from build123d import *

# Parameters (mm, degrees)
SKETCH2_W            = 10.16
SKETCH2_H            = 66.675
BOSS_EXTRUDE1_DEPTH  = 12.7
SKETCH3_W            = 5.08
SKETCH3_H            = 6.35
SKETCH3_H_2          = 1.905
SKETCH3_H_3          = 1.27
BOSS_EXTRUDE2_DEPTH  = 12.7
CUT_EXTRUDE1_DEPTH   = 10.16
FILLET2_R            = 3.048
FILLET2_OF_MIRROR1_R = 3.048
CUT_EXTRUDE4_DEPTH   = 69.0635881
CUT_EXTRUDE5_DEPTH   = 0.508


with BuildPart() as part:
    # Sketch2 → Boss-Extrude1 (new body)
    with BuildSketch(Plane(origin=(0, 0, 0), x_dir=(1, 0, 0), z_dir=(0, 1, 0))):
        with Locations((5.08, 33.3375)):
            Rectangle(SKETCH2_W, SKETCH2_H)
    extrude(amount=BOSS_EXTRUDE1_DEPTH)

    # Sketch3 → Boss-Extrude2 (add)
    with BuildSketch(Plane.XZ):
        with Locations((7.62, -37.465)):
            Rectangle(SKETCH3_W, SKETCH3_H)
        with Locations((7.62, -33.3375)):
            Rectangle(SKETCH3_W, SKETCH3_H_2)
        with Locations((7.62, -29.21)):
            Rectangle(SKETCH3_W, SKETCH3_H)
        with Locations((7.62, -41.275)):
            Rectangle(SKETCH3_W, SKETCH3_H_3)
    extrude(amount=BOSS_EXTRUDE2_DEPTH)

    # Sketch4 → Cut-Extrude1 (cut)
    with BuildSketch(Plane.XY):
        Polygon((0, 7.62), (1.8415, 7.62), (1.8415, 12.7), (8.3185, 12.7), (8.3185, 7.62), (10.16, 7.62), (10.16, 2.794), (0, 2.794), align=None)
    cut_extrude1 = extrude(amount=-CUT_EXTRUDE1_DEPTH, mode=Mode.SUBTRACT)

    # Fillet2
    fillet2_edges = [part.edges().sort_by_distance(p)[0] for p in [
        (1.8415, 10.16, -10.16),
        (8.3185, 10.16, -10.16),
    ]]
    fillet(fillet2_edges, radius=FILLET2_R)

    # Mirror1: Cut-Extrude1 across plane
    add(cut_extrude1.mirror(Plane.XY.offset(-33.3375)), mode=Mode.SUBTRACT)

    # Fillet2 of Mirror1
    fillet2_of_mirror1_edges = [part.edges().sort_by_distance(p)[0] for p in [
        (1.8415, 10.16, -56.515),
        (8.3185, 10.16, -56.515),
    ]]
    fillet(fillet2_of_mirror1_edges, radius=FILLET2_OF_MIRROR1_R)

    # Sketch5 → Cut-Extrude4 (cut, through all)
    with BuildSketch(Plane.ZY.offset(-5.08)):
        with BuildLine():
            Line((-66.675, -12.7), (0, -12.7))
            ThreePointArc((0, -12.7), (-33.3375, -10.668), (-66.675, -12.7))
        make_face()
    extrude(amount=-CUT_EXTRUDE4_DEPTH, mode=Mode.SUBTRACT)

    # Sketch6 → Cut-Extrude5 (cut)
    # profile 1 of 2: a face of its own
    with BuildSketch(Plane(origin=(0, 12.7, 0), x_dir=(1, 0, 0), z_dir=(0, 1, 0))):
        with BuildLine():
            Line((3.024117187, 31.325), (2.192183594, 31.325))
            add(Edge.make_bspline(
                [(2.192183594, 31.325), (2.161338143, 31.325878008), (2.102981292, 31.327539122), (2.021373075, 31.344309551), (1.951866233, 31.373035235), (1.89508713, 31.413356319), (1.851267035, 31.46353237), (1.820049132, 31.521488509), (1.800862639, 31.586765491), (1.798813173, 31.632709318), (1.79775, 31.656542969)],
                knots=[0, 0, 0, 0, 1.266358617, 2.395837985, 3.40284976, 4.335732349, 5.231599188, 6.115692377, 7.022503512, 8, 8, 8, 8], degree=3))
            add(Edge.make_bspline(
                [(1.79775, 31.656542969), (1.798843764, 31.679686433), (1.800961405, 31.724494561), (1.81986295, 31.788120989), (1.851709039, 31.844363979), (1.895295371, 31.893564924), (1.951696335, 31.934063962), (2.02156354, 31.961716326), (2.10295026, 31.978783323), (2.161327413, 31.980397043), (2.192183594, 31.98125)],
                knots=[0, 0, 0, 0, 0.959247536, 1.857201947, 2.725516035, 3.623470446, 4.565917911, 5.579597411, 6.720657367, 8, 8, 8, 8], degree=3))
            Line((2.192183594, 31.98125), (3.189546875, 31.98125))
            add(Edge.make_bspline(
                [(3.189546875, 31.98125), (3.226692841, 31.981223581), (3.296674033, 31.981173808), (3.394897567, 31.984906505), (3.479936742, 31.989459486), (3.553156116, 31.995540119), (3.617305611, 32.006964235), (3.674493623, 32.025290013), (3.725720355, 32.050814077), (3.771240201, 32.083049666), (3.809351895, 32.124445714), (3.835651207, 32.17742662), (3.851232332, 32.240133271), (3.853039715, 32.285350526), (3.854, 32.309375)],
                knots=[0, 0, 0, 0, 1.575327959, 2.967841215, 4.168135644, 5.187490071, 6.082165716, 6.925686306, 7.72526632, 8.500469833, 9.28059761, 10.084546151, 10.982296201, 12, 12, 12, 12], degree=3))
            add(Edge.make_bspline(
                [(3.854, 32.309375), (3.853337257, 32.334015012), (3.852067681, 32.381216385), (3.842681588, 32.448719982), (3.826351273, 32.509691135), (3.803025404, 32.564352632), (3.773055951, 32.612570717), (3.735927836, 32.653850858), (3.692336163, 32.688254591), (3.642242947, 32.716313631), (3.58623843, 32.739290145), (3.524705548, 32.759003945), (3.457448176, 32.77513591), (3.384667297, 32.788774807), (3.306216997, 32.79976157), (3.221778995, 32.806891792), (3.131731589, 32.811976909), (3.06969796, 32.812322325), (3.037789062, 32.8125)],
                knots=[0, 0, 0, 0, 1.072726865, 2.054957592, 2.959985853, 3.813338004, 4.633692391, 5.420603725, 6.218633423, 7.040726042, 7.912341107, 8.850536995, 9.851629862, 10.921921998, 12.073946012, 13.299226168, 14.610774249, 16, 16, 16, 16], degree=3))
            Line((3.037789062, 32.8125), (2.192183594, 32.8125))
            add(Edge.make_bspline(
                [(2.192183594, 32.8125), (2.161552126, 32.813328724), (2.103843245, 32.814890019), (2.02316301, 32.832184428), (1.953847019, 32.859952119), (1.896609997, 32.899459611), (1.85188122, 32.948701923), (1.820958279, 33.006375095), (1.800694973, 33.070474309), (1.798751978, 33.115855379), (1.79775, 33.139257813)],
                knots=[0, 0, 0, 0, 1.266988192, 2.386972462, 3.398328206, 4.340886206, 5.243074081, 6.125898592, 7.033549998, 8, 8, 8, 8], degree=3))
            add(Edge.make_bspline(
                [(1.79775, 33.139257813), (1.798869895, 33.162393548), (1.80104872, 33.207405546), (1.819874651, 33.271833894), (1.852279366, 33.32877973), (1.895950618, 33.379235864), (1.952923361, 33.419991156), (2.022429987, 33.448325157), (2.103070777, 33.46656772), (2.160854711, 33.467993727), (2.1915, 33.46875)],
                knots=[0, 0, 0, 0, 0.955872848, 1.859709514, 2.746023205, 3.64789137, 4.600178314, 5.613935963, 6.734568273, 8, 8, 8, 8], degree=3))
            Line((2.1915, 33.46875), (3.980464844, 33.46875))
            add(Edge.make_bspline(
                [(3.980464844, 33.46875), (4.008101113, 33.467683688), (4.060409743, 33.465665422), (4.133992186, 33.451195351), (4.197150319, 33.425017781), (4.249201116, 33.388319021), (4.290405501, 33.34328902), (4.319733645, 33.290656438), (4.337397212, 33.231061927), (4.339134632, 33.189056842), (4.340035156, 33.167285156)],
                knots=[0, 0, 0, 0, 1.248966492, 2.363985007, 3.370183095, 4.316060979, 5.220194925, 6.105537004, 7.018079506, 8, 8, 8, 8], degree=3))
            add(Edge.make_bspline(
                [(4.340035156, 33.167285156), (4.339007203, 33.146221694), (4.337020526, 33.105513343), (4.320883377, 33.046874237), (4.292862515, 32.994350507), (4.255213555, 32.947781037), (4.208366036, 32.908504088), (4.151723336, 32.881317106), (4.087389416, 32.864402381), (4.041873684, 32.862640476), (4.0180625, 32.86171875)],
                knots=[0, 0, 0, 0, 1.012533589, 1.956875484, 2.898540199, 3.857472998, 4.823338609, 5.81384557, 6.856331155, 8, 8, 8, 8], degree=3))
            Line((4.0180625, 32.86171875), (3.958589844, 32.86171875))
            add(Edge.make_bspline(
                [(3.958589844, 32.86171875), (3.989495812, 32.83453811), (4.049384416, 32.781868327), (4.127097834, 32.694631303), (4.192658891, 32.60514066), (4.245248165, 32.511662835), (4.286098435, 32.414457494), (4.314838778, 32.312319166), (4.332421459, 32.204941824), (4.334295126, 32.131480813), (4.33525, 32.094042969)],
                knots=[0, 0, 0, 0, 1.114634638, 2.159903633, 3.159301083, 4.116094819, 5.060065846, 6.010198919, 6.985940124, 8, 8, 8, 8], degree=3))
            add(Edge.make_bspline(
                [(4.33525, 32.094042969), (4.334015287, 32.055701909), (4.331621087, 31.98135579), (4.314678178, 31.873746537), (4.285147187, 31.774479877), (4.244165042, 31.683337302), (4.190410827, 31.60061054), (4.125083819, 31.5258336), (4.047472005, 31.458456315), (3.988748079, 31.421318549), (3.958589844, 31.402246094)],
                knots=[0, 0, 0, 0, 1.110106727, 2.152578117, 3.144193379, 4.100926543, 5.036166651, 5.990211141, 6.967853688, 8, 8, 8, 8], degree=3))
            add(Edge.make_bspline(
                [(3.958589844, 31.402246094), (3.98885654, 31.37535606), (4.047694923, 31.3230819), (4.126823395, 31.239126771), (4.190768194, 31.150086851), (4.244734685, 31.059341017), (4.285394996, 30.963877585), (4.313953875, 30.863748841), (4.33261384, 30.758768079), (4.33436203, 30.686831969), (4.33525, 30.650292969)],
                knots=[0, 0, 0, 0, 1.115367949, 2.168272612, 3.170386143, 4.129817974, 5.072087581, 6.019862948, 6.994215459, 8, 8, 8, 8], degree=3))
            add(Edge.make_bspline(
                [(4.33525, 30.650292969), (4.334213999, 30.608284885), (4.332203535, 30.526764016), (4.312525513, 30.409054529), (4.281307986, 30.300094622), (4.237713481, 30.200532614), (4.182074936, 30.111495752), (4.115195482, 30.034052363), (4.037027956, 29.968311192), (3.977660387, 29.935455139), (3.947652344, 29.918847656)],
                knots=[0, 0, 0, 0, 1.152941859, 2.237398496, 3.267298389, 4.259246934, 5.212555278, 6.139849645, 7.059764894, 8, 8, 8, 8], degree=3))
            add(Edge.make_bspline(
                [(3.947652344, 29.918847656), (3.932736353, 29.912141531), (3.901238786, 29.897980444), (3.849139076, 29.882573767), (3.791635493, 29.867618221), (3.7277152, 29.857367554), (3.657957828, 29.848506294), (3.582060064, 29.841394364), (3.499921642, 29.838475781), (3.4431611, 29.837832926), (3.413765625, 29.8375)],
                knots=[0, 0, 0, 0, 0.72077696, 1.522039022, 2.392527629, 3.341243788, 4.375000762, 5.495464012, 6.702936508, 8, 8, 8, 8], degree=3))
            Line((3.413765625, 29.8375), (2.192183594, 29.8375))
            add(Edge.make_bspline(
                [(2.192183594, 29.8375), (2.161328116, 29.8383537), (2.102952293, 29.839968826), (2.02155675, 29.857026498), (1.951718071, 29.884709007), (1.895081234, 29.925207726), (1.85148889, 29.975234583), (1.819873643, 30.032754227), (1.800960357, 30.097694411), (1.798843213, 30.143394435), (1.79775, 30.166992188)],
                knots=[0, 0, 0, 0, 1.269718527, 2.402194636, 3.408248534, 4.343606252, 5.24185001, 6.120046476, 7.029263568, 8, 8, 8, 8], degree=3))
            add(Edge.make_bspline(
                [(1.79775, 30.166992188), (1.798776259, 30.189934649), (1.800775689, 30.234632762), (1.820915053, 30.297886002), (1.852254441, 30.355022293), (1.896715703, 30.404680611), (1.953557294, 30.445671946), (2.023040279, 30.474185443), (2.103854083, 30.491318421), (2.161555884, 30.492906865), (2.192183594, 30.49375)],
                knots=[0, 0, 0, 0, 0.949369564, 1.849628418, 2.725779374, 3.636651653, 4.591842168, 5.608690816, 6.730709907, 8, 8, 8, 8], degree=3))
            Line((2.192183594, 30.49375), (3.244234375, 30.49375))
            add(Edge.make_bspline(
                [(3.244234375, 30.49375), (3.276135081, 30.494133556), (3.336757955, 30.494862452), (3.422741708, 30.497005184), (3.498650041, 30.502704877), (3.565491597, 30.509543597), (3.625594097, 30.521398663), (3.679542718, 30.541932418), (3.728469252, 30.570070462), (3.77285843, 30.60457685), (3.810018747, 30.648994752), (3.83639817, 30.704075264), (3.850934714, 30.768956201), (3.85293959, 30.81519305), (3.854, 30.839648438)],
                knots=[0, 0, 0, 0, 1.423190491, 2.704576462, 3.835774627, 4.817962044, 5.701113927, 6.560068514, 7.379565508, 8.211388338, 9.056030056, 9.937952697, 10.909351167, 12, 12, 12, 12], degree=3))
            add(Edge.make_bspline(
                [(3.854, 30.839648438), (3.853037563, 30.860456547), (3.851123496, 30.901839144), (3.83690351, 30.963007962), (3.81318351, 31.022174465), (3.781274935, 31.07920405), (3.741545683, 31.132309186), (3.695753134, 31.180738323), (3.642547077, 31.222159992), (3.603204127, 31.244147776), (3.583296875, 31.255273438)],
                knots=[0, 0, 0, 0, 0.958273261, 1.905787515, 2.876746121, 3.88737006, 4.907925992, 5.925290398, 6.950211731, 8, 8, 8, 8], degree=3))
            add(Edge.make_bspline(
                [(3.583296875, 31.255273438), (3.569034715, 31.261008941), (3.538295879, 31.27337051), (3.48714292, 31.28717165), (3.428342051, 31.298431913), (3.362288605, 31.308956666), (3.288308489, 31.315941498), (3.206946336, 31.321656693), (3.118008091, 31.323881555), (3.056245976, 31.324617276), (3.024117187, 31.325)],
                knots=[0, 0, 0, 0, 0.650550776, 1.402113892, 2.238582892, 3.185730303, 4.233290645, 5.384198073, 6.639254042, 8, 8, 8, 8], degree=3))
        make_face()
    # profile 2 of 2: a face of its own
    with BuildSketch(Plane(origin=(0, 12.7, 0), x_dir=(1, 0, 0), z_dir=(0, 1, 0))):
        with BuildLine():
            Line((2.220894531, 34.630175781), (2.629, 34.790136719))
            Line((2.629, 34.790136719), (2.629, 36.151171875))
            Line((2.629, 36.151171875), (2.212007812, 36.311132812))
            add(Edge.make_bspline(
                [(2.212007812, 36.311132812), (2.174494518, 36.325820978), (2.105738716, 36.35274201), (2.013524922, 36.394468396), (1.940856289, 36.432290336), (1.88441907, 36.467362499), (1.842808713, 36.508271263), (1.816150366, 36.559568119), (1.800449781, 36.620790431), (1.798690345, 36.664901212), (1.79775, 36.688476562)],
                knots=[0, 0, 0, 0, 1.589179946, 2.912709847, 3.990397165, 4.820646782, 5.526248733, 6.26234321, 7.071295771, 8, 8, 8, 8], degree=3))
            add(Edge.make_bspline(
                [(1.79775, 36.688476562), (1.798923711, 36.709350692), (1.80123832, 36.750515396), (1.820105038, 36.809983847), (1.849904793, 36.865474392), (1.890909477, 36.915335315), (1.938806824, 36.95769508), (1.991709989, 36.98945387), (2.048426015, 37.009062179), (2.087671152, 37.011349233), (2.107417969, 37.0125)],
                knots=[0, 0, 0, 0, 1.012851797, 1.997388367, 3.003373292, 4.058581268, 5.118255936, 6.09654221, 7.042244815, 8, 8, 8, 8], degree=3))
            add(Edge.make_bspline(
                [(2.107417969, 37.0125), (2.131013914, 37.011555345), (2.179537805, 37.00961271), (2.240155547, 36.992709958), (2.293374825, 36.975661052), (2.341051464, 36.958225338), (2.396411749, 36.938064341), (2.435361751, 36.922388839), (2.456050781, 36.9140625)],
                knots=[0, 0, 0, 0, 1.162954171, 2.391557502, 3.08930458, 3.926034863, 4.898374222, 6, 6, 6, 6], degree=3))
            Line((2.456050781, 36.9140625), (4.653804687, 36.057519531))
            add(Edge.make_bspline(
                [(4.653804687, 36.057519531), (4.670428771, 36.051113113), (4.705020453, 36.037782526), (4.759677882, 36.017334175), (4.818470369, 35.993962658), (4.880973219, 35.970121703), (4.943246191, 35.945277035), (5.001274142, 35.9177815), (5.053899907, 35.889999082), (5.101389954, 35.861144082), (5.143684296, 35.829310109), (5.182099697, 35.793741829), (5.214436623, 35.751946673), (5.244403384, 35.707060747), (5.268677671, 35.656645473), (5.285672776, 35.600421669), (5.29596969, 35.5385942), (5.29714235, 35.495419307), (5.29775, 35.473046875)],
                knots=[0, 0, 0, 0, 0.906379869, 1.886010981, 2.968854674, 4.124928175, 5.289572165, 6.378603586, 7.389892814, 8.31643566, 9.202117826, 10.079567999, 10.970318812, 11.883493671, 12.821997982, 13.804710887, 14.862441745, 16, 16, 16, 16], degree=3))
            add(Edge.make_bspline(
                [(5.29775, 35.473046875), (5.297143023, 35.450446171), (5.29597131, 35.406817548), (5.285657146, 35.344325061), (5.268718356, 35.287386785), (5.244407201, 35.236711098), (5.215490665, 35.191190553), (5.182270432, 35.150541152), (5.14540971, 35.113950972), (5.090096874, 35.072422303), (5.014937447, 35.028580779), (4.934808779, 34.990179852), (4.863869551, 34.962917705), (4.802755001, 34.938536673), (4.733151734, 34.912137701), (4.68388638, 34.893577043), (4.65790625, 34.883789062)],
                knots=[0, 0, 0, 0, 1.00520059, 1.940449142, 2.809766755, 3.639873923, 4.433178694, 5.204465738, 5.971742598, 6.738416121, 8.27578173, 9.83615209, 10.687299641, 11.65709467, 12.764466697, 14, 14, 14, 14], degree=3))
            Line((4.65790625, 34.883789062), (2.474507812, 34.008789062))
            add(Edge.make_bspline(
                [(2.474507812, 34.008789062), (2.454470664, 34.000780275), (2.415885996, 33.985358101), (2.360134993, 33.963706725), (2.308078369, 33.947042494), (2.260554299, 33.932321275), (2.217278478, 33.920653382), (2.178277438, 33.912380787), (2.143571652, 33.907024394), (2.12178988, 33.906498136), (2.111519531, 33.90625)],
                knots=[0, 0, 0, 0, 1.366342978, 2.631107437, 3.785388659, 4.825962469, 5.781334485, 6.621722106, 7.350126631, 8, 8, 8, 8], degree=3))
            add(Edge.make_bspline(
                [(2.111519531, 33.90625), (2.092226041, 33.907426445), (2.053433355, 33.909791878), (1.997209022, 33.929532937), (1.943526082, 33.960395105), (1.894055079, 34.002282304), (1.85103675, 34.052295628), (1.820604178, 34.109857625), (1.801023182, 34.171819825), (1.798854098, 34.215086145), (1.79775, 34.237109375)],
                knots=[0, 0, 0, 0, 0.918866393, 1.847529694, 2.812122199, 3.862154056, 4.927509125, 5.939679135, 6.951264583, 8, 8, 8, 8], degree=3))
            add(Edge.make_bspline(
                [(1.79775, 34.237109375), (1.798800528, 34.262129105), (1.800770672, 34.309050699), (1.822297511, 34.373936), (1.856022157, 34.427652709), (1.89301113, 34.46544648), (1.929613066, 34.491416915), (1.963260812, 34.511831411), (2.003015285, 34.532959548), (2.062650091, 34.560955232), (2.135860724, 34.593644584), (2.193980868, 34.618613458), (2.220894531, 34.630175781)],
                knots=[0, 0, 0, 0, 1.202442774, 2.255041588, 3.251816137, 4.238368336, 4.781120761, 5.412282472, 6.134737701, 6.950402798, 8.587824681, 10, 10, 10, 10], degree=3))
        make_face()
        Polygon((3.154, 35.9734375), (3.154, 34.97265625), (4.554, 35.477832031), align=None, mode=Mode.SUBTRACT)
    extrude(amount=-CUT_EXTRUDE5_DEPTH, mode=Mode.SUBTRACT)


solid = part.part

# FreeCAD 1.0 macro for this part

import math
import FreeCAD as App
import Part
import Sketcher
Q = App.Units.Quantity


def edges_at(feature, points):
    """Names of the edges that pass closest to the given points."""
    edges = feature.Shape.Edges
    near = lambda p: min(range(len(edges)), key=lambda i: edges[i].distToShape(Part.Vertex(*p))[0])
    return sorted({f"Edge{near(p) + 1}" for p in points})


def add_polygon(sketch, points):
    """Adds a closed chain of lines whose ends are joined by coincident constraints."""
    first, n = sketch.GeometryCount, len(points)
    for a, b in zip(points, points[1:] + points[:1]):
        sketch.addGeometry(Part.LineSegment(App.Vector(*a, 0), App.Vector(*b, 0)), False)
    for i in range(n):
        sketch.addConstraint(Sketcher.Constraint("Coincident", first + i, 2, first + (i + 1) % n, 1))

doc = App.newDocument("Part")
body = doc.addObject("PartDesign::Body", "Body")

# Sketch on XZ plane
sketch1 = body.newObject("Sketcher::SketchObject", "Sketch")
sketch1.AttachmentSupport = (doc.getObject("XZ_Plane"), [""])
sketch1.MapMode = "FlatFace"
add_polygon(sketch1, [(0, -66.675), (0, 0), (10.16, 0), (10.16, -66.675)])  # lines 0-3
sketch1.addConstraint(Sketcher.Constraint("Vertical", 0))
sketch1.addConstraint(Sketcher.Constraint("Horizontal", 1))
sketch1.addConstraint(Sketcher.Constraint("Vertical", 2))
sketch1.addConstraint(Sketcher.Constraint("Horizontal", 3))
sketch1.addConstraint(Sketcher.Constraint("Coincident", 0, 2, -1, 1))
sketch1.addConstraint(Sketcher.Constraint("DistanceX", 1, 1, 1, 2, Q("0.4 in")))
sketch1.addConstraint(Sketcher.Constraint("DistanceY", 0, 1, 0, 2, Q("2.625 in")))
pad1 = body.newObject("PartDesign::Pad", "Pad")
pad1.Profile = sketch1
pad1.Length = Q("0.5 in")
pad1.Reversed = True

# Sketch on XZ plane
sketch2 = body.newObject("Sketcher::SketchObject", "Sketch001")
sketch2.AttachmentSupport = (doc.getObject("XZ_Plane"), [""])
sketch2.MapMode = "FlatFace"
add_polygon(sketch2, [(10.16, -26.035), (5.08, -26.035), (5.08, -41.91), (10.16, -41.91)])  # lines 0-3
sketch2.addConstraint(Sketcher.Constraint("Horizontal", 0))
sketch2.addConstraint(Sketcher.Constraint("Vertical", 1))
sketch2.addConstraint(Sketcher.Constraint("Horizontal", 2))
sketch2.addConstraint(Sketcher.Constraint("Vertical", 3))
sketch2.addConstraint(Sketcher.Constraint("DistanceX", 0, 2, 0, 1, Q("0.2 in")))
sketch2.addConstraint(Sketcher.Constraint("DistanceX", -1, 1, 0, 2, Q("0.2 in")))
sketch2.addConstraint(Sketcher.Constraint("DistanceY", 1, 2, 1, 1, Q("0.625 in")))
sketch2.addConstraint(Sketcher.Constraint("DistanceY", 1, 2, -1, 1, Q("1.65 in")))
pad2 = body.newObject("PartDesign::Pad", "Pad001")
pad2.Profile = sketch2
pad2.Length = Q("0.5 in")

# Sketch on XY plane
sketch3 = body.newObject("Sketcher::SketchObject", "Sketch002")
sketch3.AttachmentSupport = (doc.getObject("XY_Plane"), [""])
sketch3.MapMode = "FlatFace"
add_polygon(sketch3, [(1.8415, 7.62), (0, 7.62), (0, 2.794), (10.16, 2.794), (10.16, 7.62), (8.3185, 7.62), (8.3185, 12.7), (1.8415, 12.7)])  # lines 0-7
sketch3.addConstraint(Sketcher.Constraint("Horizontal", 0))
sketch3.addConstraint(Sketcher.Constraint("Vertical", 1))
sketch3.addConstraint(Sketcher.Constraint("Horizontal", 2))
sketch3.addConstraint(Sketcher.Constraint("Vertical", 3))
sketch3.addConstraint(Sketcher.Constraint("Horizontal", 4))
sketch3.addConstraint(Sketcher.Constraint("Vertical", 5))
sketch3.addConstraint(Sketcher.Constraint("Horizontal", 6))
sketch3.addConstraint(Sketcher.Constraint("Vertical", 7))
sketch3.addConstraint(Sketcher.Constraint("PointOnObject", 0, 2, -2))
sketch3.addConstraint(Sketcher.Constraint("Horizontal", 0, 2, 3, 2))
sketch3.addConstraint(Sketcher.Constraint("Equal", 0, 4))
sketch3.addConstraint(Sketcher.Constraint("DistanceX", 2, 1, 2, 2, Q("0.4 in")))
sketch3.addConstraint(Sketcher.Constraint("DistanceY", 5, 1, 5, 2, Q("0.2 in")))
sketch3.addConstraint(Sketcher.Constraint("DistanceY", 1, 2, 1, 1, Q("0.19 in")))
sketch3.addConstraint(Sketcher.Constraint("DistanceY", -1, 1, 0, 2, Q("0.3 in")))
sketch3.addConstraint(Sketcher.Constraint("DistanceX", 6, 2, 6, 1, Q("0.255 in")))
pocket1 = body.newObject("PartDesign::Pocket", "Pocket")
pocket1.Profile = sketch3
pocket1.Length = Q("0.4 in")
doc.recompute()

fillet = body.newObject("PartDesign::Fillet", "Fillet")
fillet.Base = (pocket1, edges_at(pocket1, [(1.841, 10.16, -10.16), (8.319, 10.16, -10.16)]))
fillet.Radius = Q("0.12 in")
doc.recompute()

datumplane = body.newObject("PartDesign::Plane", "DatumPlane")
datumplane.AttachmentSupport = (doc.getObject("XY_Plane"), [""])
datumplane.MapMode = "FlatFace"
datumplane.AttachmentOffset = App.Placement(App.Vector(0, 0, -1.3125 * 25.4), App.Rotation())
mirrored = body.newObject("PartDesign::Mirrored", "Mirrored")
mirrored.Originals = [pocket1]
mirrored.MirrorPlane = (datumplane, [""])
body.Tip = mirrored
doc.recompute()

fillet2 = body.newObject("PartDesign::Fillet", "Fillet001")
fillet2.Base = (mirrored, edges_at(mirrored, [(1.841, 10.16, -56.515), (8.319, 10.16, -56.515)]))
fillet2.Radius = Q("0.12 in")

# Sketch on YZ plane
sketch4 = body.newObject("Sketcher::SketchObject", "Sketch003")
sketch4.AttachmentSupport = (doc.getObject("YZ_Plane"), [""])
sketch4.MapMode = "FlatFace"
sketch4.AttachmentOffset = App.Placement(App.Vector(0, 0, 0.2 * 25.4), App.Rotation())
sketch4.addGeometry(Part.LineSegment(App.Vector(-12.7, -66.675, 0), App.Vector(-12.7, 0, 0)), False)
sketch4.addGeometry(Part.ArcOfCircle(Part.Circle(App.Vector(-285.15568, -33.3375, 0), App.Vector(0, 0, 1), 274.48768), math.radians(-6.975998), math.radians(6.975998)), False)
sketch4.addConstraint(Sketcher.Constraint("Coincident", 0, 1, 1, 1))
sketch4.addConstraint(Sketcher.Constraint("Coincident", 1, 2, 0, 2))
sketch4.addConstraint(Sketcher.Constraint("Vertical", 0))
sketch4.addConstraint(Sketcher.Constraint("PointOnObject", 1, 2, -1))
sketch4.addConstraint(Sketcher.Constraint("DistanceX", 0, 1, -1, 1, Q("0.5 in")))
sketch4.addConstraint(Sketcher.Constraint("DistanceY", 0, 1, 0, 2, Q("2.625 in")))
sketch4.addConstraint(Sketcher.Constraint("Radius", 1, 274.48768))
pocket2 = body.newObject("PartDesign::Pocket", "Pocket001")
pocket2.Profile = sketch4
pocket2.Type = "ThroughAll"
pocket2.Reversed = True

# Sketch on XZ plane
sketch5 = body.newObject("Sketcher::SketchObject", "Sketch004")
sketch5.AttachmentSupport = (doc.getObject("XZ_Plane"), [""])
sketch5.MapMode = "FlatFace"
sketch5.AttachmentOffset = App.Placement(App.Vector(0, 0, -0.5 * 25.4), App.Rotation())
sketch5.addGeometry(Part.LineSegment(App.Vector(2.192184, -31.325, 0), App.Vector(3.024117, -31.325, 0)), False)  # 0
sketch5.addGeometry(Part.BSplineCurve([App.Vector(3.583297, -31.255273, 0), App.Vector(3.569035, -31.261009, 0), App.Vector(3.538296, -31.273371, 0), App.Vector(3.487143, -31.287172, 0), App.Vector(3.428342, -31.298432, 0), App.Vector(3.362289, -31.308957, 0), App.Vector(3.288308, -31.315941, 0), App.Vector(3.206946, -31.321657, 0), App.Vector(3.118008, -31.323882, 0), App.Vector(3.056246, -31.324617, 0), App.Vector(3.024117, -31.325, 0)], [4, 1, 1, 1, 1, 1, 1, 1, 4], [0, 0.650550776, 1.402113892, 2.238582892, 3.185730303, 4.233290645, 5.384198073, 6.639254042, 8], False, 3, [1, 1, 1, 1, 1, 1, 1, 1, 1, 1, 1], False), False)  # 1
sketch5.addGeometry(Part.BSplineCurve([App.Vector(3.854, -30.839648, 0), App.Vector(3.853038, -30.860457, 0), App.Vector(3.851123, -30.901839, 0), App.Vector(3.836904, -30.963008, 0), App.Vector(3.813184, -31.022174, 0), App.Vector(3.781275, -31.079204, 0), App.Vector(3.741546, -31.132309, 0), App.Vector(3.695753, -31.180738, 0), App.Vector(3.642547, -31.22216, 0), App.Vector(3.603204, -31.244148, 0), App.Vector(3.583297, -31.255273, 0)], [4, 1, 1, 1, 1, 1, 1, 1, 4], [0, 0.958273261, 1.905787515, 2.876746121, 3.88737006, 4.907925992, 5.925290398, 6.950211731, 8], False, 3, [1, 1, 1, 1, 1, 1, 1, 1, 1, 1, 1], False), False)  # 2
sketch5.addGeometry(Part.BSplineCurve([App.Vector(3.244234, -30.49375, 0), App.Vector(3.276135, -30.494134, 0), App.Vector(3.336758, -30.494862, 0), App.Vector(3.422742, -30.497005, 0), App.Vector(3.49865, -30.502705, 0), App.Vector(3.565492, -30.509544, 0), App.Vector(3.625594, -30.521399, 0), App.Vector(3.679543, -30.541932, 0), App.Vector(3.728469, -30.57007, 0), App.Vector(3.772858, -30.604577, 0), App.Vector(3.810019, -30.648995, 0), App.Vector(3.836398, -30.704075, 0), App.Vector(3.850935, -30.768956, 0), App.Vector(3.85294, -30.815193, 0), App.Vector(3.854, -30.839648, 0)], [4, 1, 1, 1, 1, 1, 1, 1, 1, 1, 1, 1, 4], [0, 1.423190491, 2.704576462, 3.835774627, 4.817962044, 5.701113927, 6.560068514, 7.379565508, 8.211388338, 9.056030056, 9.937952697, 10.909351167, 12], False, 3, [1, 1, 1, 1, 1, 1, 1, 1, 1, 1, 1, 1, 1, 1, 1], False), False)  # 3
sketch5.addGeometry(Part.LineSegment(App.Vector(3.244234, -30.49375, 0), App.Vector(2.192184, -30.49375, 0)), False)  # 4
sketch5.addGeometry(Part.BSplineCurve([App.Vector(1.79775, -30.166992, 0), App.Vector(1.798776, -30.189935, 0), App.Vector(1.800776, -30.234633, 0), App.Vector(1.820915, -30.297886, 0), App.Vector(1.852254, -30.355022, 0), App.Vector(1.896716, -30.404681, 0), App.Vector(1.953557, -30.445672, 0), App.Vector(2.02304, -30.474185, 0), App.Vector(2.103854, -30.491318, 0), App.Vector(2.161556, -30.492907, 0), App.Vector(2.192184, -30.49375, 0)], [4, 1, 1, 1, 1, 1, 1, 1, 4], [0, 0.949369564, 1.849628418, 2.725779374, 3.636651653, 4.591842168, 5.608690816, 6.730709907, 8], False, 3, [1, 1, 1, 1, 1, 1, 1, 1, 1, 1, 1], False), False)  # 5
sketch5.addGeometry(Part.BSplineCurve([App.Vector(2.192184, -29.8375, 0), App.Vector(2.161328, -29.838354, 0), App.Vector(2.102952, -29.839969, 0), App.Vector(2.021557, -29.857026, 0), App.Vector(1.951718, -29.884709, 0), App.Vector(1.895081, -29.925208, 0), App.Vector(1.851489, -29.975235, 0), App.Vector(1.819874, -30.032754, 0), App.Vector(1.80096, -30.097694, 0), App.Vector(1.798843, -30.143394, 0), App.Vector(1.79775, -30.166992, 0)], [4, 1, 1, 1, 1, 1, 1, 1, 4], [0, 1.269718527, 2.402194636, 3.408248534, 4.343606252, 5.24185001, 6.120046476, 7.029263568, 8], False, 3, [1, 1, 1, 1, 1, 1, 1, 1, 1, 1, 1], False), False)  # 6
sketch5.addGeometry(Part.LineSegment(App.Vector(2.192184, -29.8375, 0), App.Vector(3.413766, -29.8375, 0)), False)  # 7
sketch5.addGeometry(Part.BSplineCurve([App.Vector(3.947652, -29.918848, 0), App.Vector(3.932736, -29.912142, 0), App.Vector(3.901239, -29.89798, 0), App.Vector(3.849139, -29.882574, 0), App.Vector(3.791635, -29.867618, 0), App.Vector(3.727715, -29.857368, 0), App.Vector(3.657958, -29.848506, 0), App.Vector(3.58206, -29.841394, 0), App.Vector(3.499922, -29.838476, 0), App.Vector(3.443161, -29.837833, 0), App.Vector(3.413766, -29.8375, 0)], [4, 1, 1, 1, 1, 1, 1, 1, 4], [0, 0.72077696, 1.522039022, 2.392527629, 3.341243788, 4.375000762, 5.495464012, 6.702936508, 8], False, 3, [1, 1, 1, 1, 1, 1, 1, 1, 1, 1, 1], False), False)  # 8
sketch5.addGeometry(Part.BSplineCurve([App.Vector(4.33525, -30.650293, 0), App.Vector(4.334214, -30.608285, 0), App.Vector(4.332204, -30.526764, 0), App.Vector(4.312526, -30.409055, 0), App.Vector(4.281308, -30.300095, 0), App.Vector(4.237713, -30.200533, 0), App.Vector(4.182075, -30.111496, 0), App.Vector(4.115195, -30.034052, 0), App.Vector(4.037028, -29.968311, 0), App.Vector(3.97766, -29.935455, 0), App.Vector(3.947652, -29.918848, 0)], [4, 1, 1, 1, 1, 1, 1, 1, 4], [0, 1.152941859, 2.237398496, 3.267298389, 4.259246934, 5.212555278, 6.139849645, 7.059764894, 8], False, 3, [1, 1, 1, 1, 1, 1, 1, 1, 1, 1, 1], False), False)  # 9
sketch5.addGeometry(Part.BSplineCurve([App.Vector(3.95859, -31.402246, 0), App.Vector(3.988857, -31.375356, 0), App.Vector(4.047695, -31.323082, 0), App.Vector(4.126823, -31.239127, 0), App.Vector(4.190768, -31.150087, 0), App.Vector(4.244735, -31.059341, 0), App.Vector(4.285395, -30.963878, 0), App.Vector(4.313954, -30.863749, 0), App.Vector(4.332614, -30.758768, 0), App.Vector(4.334362, -30.686832, 0), App.Vector(4.33525, -30.650293, 0)], [4, 1, 1, 1, 1, 1, 1, 1, 4], [0, 1.115367949, 2.168272612, 3.170386143, 4.129817974, 5.072087581, 6.019862948, 6.994215459, 8], False, 3, [1, 1, 1, 1, 1, 1, 1, 1, 1, 1, 1], False), False)  # 10
sketch5.addGeometry(Part.BSplineCurve([App.Vector(4.33525, -32.094043, 0), App.Vector(4.334015, -32.055702, 0), App.Vector(4.331621, -31.981356, 0), App.Vector(4.314678, -31.873747, 0), App.Vector(4.285147, -31.77448, 0), App.Vector(4.244165, -31.683337, 0), App.Vector(4.190411, -31.600611, 0), App.Vector(4.125084, -31.525834, 0), App.Vector(4.047472, -31.458456, 0), App.Vector(3.988748, -31.421319, 0), App.Vector(3.95859, -31.402246, 0)], [4, 1, 1, 1, 1, 1, 1, 1, 4], [0, 1.110106727, 2.152578117, 3.144193379, 4.100926543, 5.036166651, 5.990211141, 6.967853688, 8], False, 3, [1, 1, 1, 1, 1, 1, 1, 1, 1, 1, 1], False), False)  # 11
sketch5.addGeometry(Part.BSplineCurve([App.Vector(3.95859, -32.861719, 0), App.Vector(3.989496, -32.834538, 0), App.Vector(4.049384, -32.781868, 0), App.Vector(4.127098, -32.694631, 0), App.Vector(4.192659, -32.605141, 0), App.Vector(4.245248, -32.511663, 0), App.Vector(4.286098, -32.414457, 0), App.Vector(4.314839, -32.312319, 0), App.Vector(4.332421, -32.204942, 0), App.Vector(4.334295, -32.131481, 0), App.Vector(4.33525, -32.094043, 0)], [4, 1, 1, 1, 1, 1, 1, 1, 4], [0, 1.114634638, 2.159903633, 3.159301083, 4.116094819, 5.060065846, 6.010198919, 6.985940124, 8], False, 3, [1, 1, 1, 1, 1, 1, 1, 1, 1, 1, 1], False), False)  # 12
sketch5.addGeometry(Part.LineSegment(App.Vector(3.95859, -32.861719, 0), App.Vector(4.018063, -32.861719, 0)), False)  # 13
sketch5.addGeometry(Part.BSplineCurve([App.Vector(4.340035, -33.167285, 0), App.Vector(4.339007, -33.146222, 0), App.Vector(4.337021, -33.105513, 0), App.Vector(4.320883, -33.046874, 0), App.Vector(4.292863, -32.994351, 0), App.Vector(4.255214, -32.947781, 0), App.Vector(4.208366, -32.908504, 0), App.Vector(4.151723, -32.881317, 0), App.Vector(4.087389, -32.864402, 0), App.Vector(4.041874, -32.86264, 0), App.Vector(4.018063, -32.861719, 0)], [4, 1, 1, 1, 1, 1, 1, 1, 4], [0, 1.012533589, 1.956875484, 2.898540199, 3.857472998, 4.823338609, 5.81384557, 6.856331155, 8], False, 3, [1, 1, 1, 1, 1, 1, 1, 1, 1, 1, 1], False), False)  # 14
sketch5.addGeometry(Part.BSplineCurve([App.Vector(3.980465, -33.46875, 0), App.Vector(4.008101, -33.467684, 0), App.Vector(4.06041, -33.465665, 0), App.Vector(4.133992, -33.451195, 0), App.Vector(4.19715, -33.425018, 0), App.Vector(4.249201, -33.388319, 0), App.Vector(4.290406, -33.343289, 0), App.Vector(4.319734, -33.290656, 0), App.Vector(4.337397, -33.231062, 0), App.Vector(4.339135, -33.189057, 0), App.Vector(4.340035, -33.167285, 0)], [4, 1, 1, 1, 1, 1, 1, 1, 4], [0, 1.248966492, 2.363985007, 3.370183095, 4.316060979, 5.220194925, 6.105537004, 7.018079506, 8], False, 3, [1, 1, 1, 1, 1, 1, 1, 1, 1, 1, 1], False), False)  # 15
sketch5.addGeometry(Part.LineSegment(App.Vector(3.980465, -33.46875, 0), App.Vector(2.1915, -33.46875, 0)), False)  # 16
sketch5.addGeometry(Part.BSplineCurve([App.Vector(1.79775, -33.139258, 0), App.Vector(1.79887, -33.162394, 0), App.Vector(1.801049, -33.207406, 0), App.Vector(1.819875, -33.271834, 0), App.Vector(1.852279, -33.32878, 0), App.Vector(1.895951, -33.379236, 0), App.Vector(1.952923, -33.419991, 0), App.Vector(2.02243, -33.448325, 0), App.Vector(2.103071, -33.466568, 0), App.Vector(2.160855, -33.467994, 0), App.Vector(2.1915, -33.46875, 0)], [4, 1, 1, 1, 1, 1, 1, 1, 4], [0, 0.955872848, 1.859709514, 2.746023205, 3.64789137, 4.600178314, 5.613935963, 6.734568273, 8], False, 3, [1, 1, 1, 1, 1, 1, 1, 1, 1, 1, 1], False), False)  # 17
sketch5.addGeometry(Part.BSplineCurve([App.Vector(2.192184, -32.8125, 0), App.Vector(2.161552, -32.813329, 0), App.Vector(2.103843, -32.81489, 0), App.Vector(2.023163, -32.832184, 0), App.Vector(1.953847, -32.859952, 0), App.Vector(1.89661, -32.89946, 0), App.Vector(1.851881, -32.948702, 0), App.Vector(1.820958, -33.006375, 0), App.Vector(1.800695, -33.070474, 0), App.Vector(1.798752, -33.115855, 0), App.Vector(1.79775, -33.139258, 0)], [4, 1, 1, 1, 1, 1, 1, 1, 4], [0, 1.266988192, 2.386972462, 3.398328206, 4.340886206, 5.243074081, 6.125898592, 7.033549998, 8], False, 3, [1, 1, 1, 1, 1, 1, 1, 1, 1, 1, 1], False), False)  # 18
sketch5.addGeometry(Part.LineSegment(App.Vector(2.192184, -32.8125, 0), App.Vector(3.037789, -32.8125, 0)), False)  # 19
sketch5.addGeometry(Part.BSplineCurve([App.Vector(3.854, -32.309375, 0), App.Vector(3.853337, -32.334015, 0), App.Vector(3.852068, -32.381216, 0), App.Vector(3.842682, -32.44872, 0), App.Vector(3.826351, -32.509691, 0), App.Vector(3.803025, -32.564353, 0), App.Vector(3.773056, -32.612571, 0), App.Vector(3.735928, -32.653851, 0), App.Vector(3.692336, -32.688255, 0), App.Vector(3.642243, -32.716314, 0), App.Vector(3.586238, -32.73929, 0), App.Vector(3.524706, -32.759004, 0), App.Vector(3.457448, -32.775136, 0), App.Vector(3.384667, -32.788775, 0), App.Vector(3.306217, -32.799762, 0), App.Vector(3.221779, -32.806892, 0), App.Vector(3.131732, -32.811977, 0), App.Vector(3.069698, -32.812322, 0), App.Vector(3.037789, -32.8125, 0)], [4, 1, 1, 1, 1, 1, 1, 1, 1, 1, 1, 1, 1, 1, 1, 1, 4], [0, 1.072726865, 2.054957592, 2.959985853, 3.813338004, 4.633692391, 5.420603725, 6.218633423, 7.040726042, 7.912341107, 8.850536995, 9.851629862, 10.921921998, 12.073946012, 13.299226168, 14.610774249, 16], False, 3, [1, 1, 1, 1, 1, 1, 1, 1, 1, 1, 1, 1, 1, 1, 1, 1, 1, 1, 1], False), False)  # 20
sketch5.addGeometry(Part.BSplineCurve([App.Vector(3.189547, -31.98125, 0), App.Vector(3.226693, -31.981224, 0), App.Vector(3.296674, -31.981174, 0), App.Vector(3.394898, -31.984907, 0), App.Vector(3.479937, -31.989459, 0), App.Vector(3.553156, -31.99554, 0), App.Vector(3.617306, -32.006964, 0), App.Vector(3.674494, -32.02529, 0), App.Vector(3.72572, -32.050814, 0), App.Vector(3.77124, -32.08305, 0), App.Vector(3.809352, -32.124446, 0), App.Vector(3.835651, -32.177427, 0), App.Vector(3.851232, -32.240133, 0), App.Vector(3.85304, -32.285351, 0), App.Vector(3.854, -32.309375, 0)], [4, 1, 1, 1, 1, 1, 1, 1, 1, 1, 1, 1, 4], [0, 1.575327959, 2.967841215, 4.168135644, 5.187490071, 6.082165716, 6.925686306, 7.72526632, 8.500469833, 9.28059761, 10.084546151, 10.982296201, 12], False, 3, [1, 1, 1, 1, 1, 1, 1, 1, 1, 1, 1, 1, 1, 1, 1], False), False)  # 21
sketch5.addGeometry(Part.LineSegment(App.Vector(3.189547, -31.98125, 0), App.Vector(2.192184, -31.98125, 0)), False)  # 22
sketch5.addGeometry(Part.BSplineCurve([App.Vector(1.79775, -31.656543, 0), App.Vector(1.798844, -31.679686, 0), App.Vector(1.800961, -31.724495, 0), App.Vector(1.819863, -31.788121, 0), App.Vector(1.851709, -31.844364, 0), App.Vector(1.895295, -31.893565, 0), App.Vector(1.951696, -31.934064, 0), App.Vector(2.021564, -31.961716, 0), App.Vector(2.10295, -31.978783, 0), App.Vector(2.161327, -31.980397, 0), App.Vector(2.192184, -31.98125, 0)], [4, 1, 1, 1, 1, 1, 1, 1, 4], [0, 0.959247536, 1.857201947, 2.725516035, 3.623470446, 4.565917911, 5.579597411, 6.720657367, 8], False, 3, [1, 1, 1, 1, 1, 1, 1, 1, 1, 1, 1], False), False)  # 23
sketch5.addGeometry(Part.BSplineCurve([App.Vector(2.192184, -31.325, 0), App.Vector(2.161338, -31.325878, 0), App.Vector(2.102981, -31.327539, 0), App.Vector(2.021373, -31.34431, 0), App.Vector(1.951866, -31.373035, 0), App.Vector(1.895087, -31.413356, 0), App.Vector(1.851267, -31.463532, 0), App.Vector(1.820049, -31.521489, 0), App.Vector(1.800863, -31.586765, 0), App.Vector(1.798813, -31.632709, 0), App.Vector(1.79775, -31.656543, 0)], [4, 1, 1, 1, 1, 1, 1, 1, 4], [0, 1.266358617, 2.395837985, 3.40284976, 4.335732349, 5.231599188, 6.115692377, 7.022503512, 8], False, 3, [1, 1, 1, 1, 1, 1, 1, 1, 1, 1, 1], False), False)  # 24
sketch5.addGeometry(Part.LineSegment(App.Vector(2.629, -34.790137, 0), App.Vector(2.220895, -34.630176, 0)), False)  # 25
sketch5.addGeometry(Part.BSplineCurve([App.Vector(1.79775, -34.237109, 0), App.Vector(1.798801, -34.262129, 0), App.Vector(1.800771, -34.309051, 0), App.Vector(1.822298, -34.373936, 0), App.Vector(1.856022, -34.427653, 0), App.Vector(1.893011, -34.465446, 0), App.Vector(1.929613, -34.491417, 0), App.Vector(1.963261, -34.511831, 0), App.Vector(2.003015, -34.53296, 0), App.Vector(2.06265, -34.560955, 0), App.Vector(2.135861, -34.593645, 0), App.Vector(2.193981, -34.618613, 0), App.Vector(2.220895, -34.630176, 0)], [4, 1, 1, 1, 1, 1, 1, 1, 1, 1, 4], [0, 1.202442774, 2.255041588, 3.251816137, 4.238368336, 4.781120761, 5.412282472, 6.134737701, 6.950402798, 8.587824681, 10], False, 3, [1, 1, 1, 1, 1, 1, 1, 1, 1, 1, 1, 1, 1], False), False)  # 26
sketch5.addGeometry(Part.BSplineCurve([App.Vector(2.11152, -33.90625, 0), App.Vector(2.092226, -33.907426, 0), App.Vector(2.053433, -33.909792, 0), App.Vector(1.997209, -33.929533, 0), App.Vector(1.943526, -33.960395, 0), App.Vector(1.894055, -34.002282, 0), App.Vector(1.851037, -34.052296, 0), App.Vector(1.820604, -34.109858, 0), App.Vector(1.801023, -34.17182, 0), App.Vector(1.798854, -34.215086, 0), App.Vector(1.79775, -34.237109, 0)], [4, 1, 1, 1, 1, 1, 1, 1, 4], [0, 0.918866393, 1.847529694, 2.812122199, 3.862154056, 4.927509125, 5.939679135, 6.951264583, 8], False, 3, [1, 1, 1, 1, 1, 1, 1, 1, 1, 1, 1], False), False)  # 27
sketch5.addGeometry(Part.BSplineCurve([App.Vector(2.474508, -34.008789, 0), App.Vector(2.454471, -34.00078, 0), App.Vector(2.415886, -33.985358, 0), App.Vector(2.360135, -33.963707, 0), App.Vector(2.308078, -33.947042, 0), App.Vector(2.260554, -33.932321, 0), App.Vector(2.217278, -33.920653, 0), App.Vector(2.178277, -33.912381, 0), App.Vector(2.143572, -33.907024, 0), App.Vector(2.12179, -33.906498, 0), App.Vector(2.11152, -33.90625, 0)], [4, 1, 1, 1, 1, 1, 1, 1, 4], [0, 1.366342978, 2.631107437, 3.785388659, 4.825962469, 5.781334485, 6.621722106, 7.350126631, 8], False, 3, [1, 1, 1, 1, 1, 1, 1, 1, 1, 1, 1], False), False)  # 28
sketch5.addGeometry(Part.LineSegment(App.Vector(2.474508, -34.008789, 0), App.Vector(4.657906, -34.883789, 0)), False)  # 29
sketch5.addGeometry(Part.BSplineCurve([App.Vector(5.29775, -35.473047, 0), App.Vector(5.297143, -35.450446, 0), App.Vector(5.295971, -35.406818, 0), App.Vector(5.285657, -35.344325, 0), App.Vector(5.268718, -35.287387, 0), App.Vector(5.244407, -35.236711, 0), App.Vector(5.215491, -35.191191, 0), App.Vector(5.18227, -35.150541, 0), App.Vector(5.14541, -35.113951, 0), App.Vector(5.090097, -35.072422, 0), App.Vector(5.014937, -35.028581, 0), App.Vector(4.934809, -34.99018, 0), App.Vector(4.86387, -34.962918, 0), App.Vector(4.802755, -34.938537, 0), App.Vector(4.733152, -34.912138, 0), App.Vector(4.683886, -34.893577, 0), App.Vector(4.657906, -34.883789, 0)], [4, 1, 1, 1, 1, 1, 1, 1, 1, 1, 1, 1, 1, 1, 4], [0, 1.00520059, 1.940449142, 2.809766755, 3.639873923, 4.433178694, 5.204465738, 5.971742598, 6.738416121, 8.27578173, 9.83615209, 10.687299641, 11.65709467, 12.764466697, 14], False, 3, [1, 1, 1, 1, 1, 1, 1, 1, 1, 1, 1, 1, 1, 1, 1, 1, 1], False), False)  # 30
sketch5.addGeometry(Part.BSplineCurve([App.Vector(4.653805, -36.05752, 0), App.Vector(4.670429, -36.051113, 0), App.Vector(4.70502, -36.037783, 0), App.Vector(4.759678, -36.017334, 0), App.Vector(4.81847, -35.993963, 0), App.Vector(4.880973, -35.970122, 0), App.Vector(4.943246, -35.945277, 0), App.Vector(5.001274, -35.917781, 0), App.Vector(5.0539, -35.889999, 0), App.Vector(5.10139, -35.861144, 0), App.Vector(5.143684, -35.82931, 0), App.Vector(5.1821, -35.793742, 0), App.Vector(5.214437, -35.751947, 0), App.Vector(5.244403, -35.707061, 0), App.Vector(5.268678, -35.656645, 0), App.Vector(5.285673, -35.600422, 0), App.Vector(5.29597, -35.538594, 0), App.Vector(5.297142, -35.495419, 0), App.Vector(5.29775, -35.473047, 0)], [4, 1, 1, 1, 1, 1, 1, 1, 1, 1, 1, 1, 1, 1, 1, 1, 4], [0, 0.906379869, 1.886010981, 2.968854674, 4.124928175, 5.289572165, 6.378603586, 7.389892814, 8.31643566, 9.202117826, 10.079567999, 10.970318812, 11.883493671, 12.821997982, 13.804710887, 14.862441745, 16], False, 3, [1, 1, 1, 1, 1, 1, 1, 1, 1, 1, 1, 1, 1, 1, 1, 1, 1, 1, 1], False), False)  # 31
sketch5.addGeometry(Part.LineSegment(App.Vector(4.653805, -36.05752, 0), App.Vector(2.456051, -36.914062, 0)), False)  # 32
sketch5.addGeometry(Part.BSplineCurve([App.Vector(2.107418, -37.0125, 0), App.Vector(2.131014, -37.011555, 0), App.Vector(2.179538, -37.009613, 0), App.Vector(2.240156, -36.99271, 0), App.Vector(2.293375, -36.975661, 0), App.Vector(2.341051, -36.958225, 0), App.Vector(2.396412, -36.938064, 0), App.Vector(2.435362, -36.922389, 0), App.Vector(2.456051, -36.914062, 0)], [4, 1, 1, 1, 1, 1, 4], [0, 1.162954171, 2.391557502, 3.08930458, 3.926034863, 4.898374222, 6], False, 3, [1, 1, 1, 1, 1, 1, 1, 1, 1], False), False)  # 33
sketch5.addGeometry(Part.BSplineCurve([App.Vector(1.79775, -36.688477, 0), App.Vector(1.798924, -36.709351, 0), App.Vector(1.801238, -36.750515, 0), App.Vector(1.820105, -36.809984, 0), App.Vector(1.849905, -36.865474, 0), App.Vector(1.890909, -36.915335, 0), App.Vector(1.938807, -36.957695, 0), App.Vector(1.99171, -36.989454, 0), App.Vector(2.048426, -37.009062, 0), App.Vector(2.087671, -37.011349, 0), App.Vector(2.107418, -37.0125, 0)], [4, 1, 1, 1, 1, 1, 1, 1, 4], [0, 1.012851797, 1.997388367, 3.003373292, 4.058581268, 5.118255936, 6.09654221, 7.042244815, 8], False, 3, [1, 1, 1, 1, 1, 1, 1, 1, 1, 1, 1], False), False)  # 34
sketch5.addGeometry(Part.BSplineCurve([App.Vector(2.212008, -36.311133, 0), App.Vector(2.174495, -36.325821, 0), App.Vector(2.105739, -36.352742, 0), App.Vector(2.013525, -36.394468, 0), App.Vector(1.940856, -36.43229, 0), App.Vector(1.884419, -36.467362, 0), App.Vector(1.842809, -36.508271, 0), App.Vector(1.81615, -36.559568, 0), App.Vector(1.80045, -36.62079, 0), App.Vector(1.79869, -36.664901, 0), App.Vector(1.79775, -36.688477, 0)], [4, 1, 1, 1, 1, 1, 1, 1, 4], [0, 1.589179946, 2.912709847, 3.990397165, 4.820646782, 5.526248733, 6.26234321, 7.071295771, 8], False, 3, [1, 1, 1, 1, 1, 1, 1, 1, 1, 1, 1], False), False)  # 35
sketch5.addGeometry(Part.LineSegment(App.Vector(2.212008, -36.311133, 0), App.Vector(2.629, -36.151172, 0)), False)  # 36
sketch5.addGeometry(Part.LineSegment(App.Vector(2.629, -36.151172, 0), App.Vector(2.629, -34.790137, 0)), False)  # 37
add_polygon(sketch5, [(3.154, -35.973438), (4.554, -35.477832), (3.154, -34.972656)])  # lines 38-40
sketch5.addConstraint(Sketcher.Constraint("Block", 1))
sketch5.addConstraint(Sketcher.Constraint("Block", 2))
sketch5.addConstraint(Sketcher.Constraint("Block", 3))
sketch5.addConstraint(Sketcher.Constraint("Block", 5))
sketch5.addConstraint(Sketcher.Constraint("Block", 6))
sketch5.addConstraint(Sketcher.Constraint("Block", 8))
sketch5.addConstraint(Sketcher.Constraint("Block", 9))
sketch5.addConstraint(Sketcher.Constraint("Block", 10))
sketch5.addConstraint(Sketcher.Constraint("Block", 11))
sketch5.addConstraint(Sketcher.Constraint("Block", 12))
sketch5.addConstraint(Sketcher.Constraint("Block", 14))
sketch5.addConstraint(Sketcher.Constraint("Block", 15))
sketch5.addConstraint(Sketcher.Constraint("Block", 17))
sketch5.addConstraint(Sketcher.Constraint("Block", 18))
sketch5.addConstraint(Sketcher.Constraint("Block", 20))
sketch5.addConstraint(Sketcher.Constraint("Block", 21))
sketch5.addConstraint(Sketcher.Constraint("Block", 23))
sketch5.addConstraint(Sketcher.Constraint("Block", 24))
sketch5.addConstraint(Sketcher.Constraint("Block", 26))
sketch5.addConstraint(Sketcher.Constraint("Block", 27))
sketch5.addConstraint(Sketcher.Constraint("Block", 28))
sketch5.addConstraint(Sketcher.Constraint("Block", 30))
sketch5.addConstraint(Sketcher.Constraint("Block", 31))
sketch5.addConstraint(Sketcher.Constraint("Block", 33))
sketch5.addConstraint(Sketcher.Constraint("Block", 34))
sketch5.addConstraint(Sketcher.Constraint("Block", 35))
sketch5.addConstraint(Sketcher.Constraint("Coincident", 0, 2, 1, 2))
sketch5.addConstraint(Sketcher.Constraint("Coincident", 3, 1, 4, 1))
sketch5.addConstraint(Sketcher.Constraint("Coincident", 4, 2, 5, 2))
sketch5.addConstraint(Sketcher.Constraint("Coincident", 6, 1, 7, 1))
sketch5.addConstraint(Sketcher.Constraint("Coincident", 7, 2, 8, 2))
sketch5.addConstraint(Sketcher.Constraint("Coincident", 12, 1, 13, 1))
sketch5.addConstraint(Sketcher.Constraint("Coincident", 13, 2, 14, 2))
sketch5.addConstraint(Sketcher.Constraint("Coincident", 15, 1, 16, 1))
sketch5.addConstraint(Sketcher.Constraint("Coincident", 16, 2, 17, 2))
sketch5.addConstraint(Sketcher.Constraint("Coincident", 18, 1, 19, 1))
sketch5.addConstraint(Sketcher.Constraint("Coincident", 19, 2, 20, 2))
sketch5.addConstraint(Sketcher.Constraint("Coincident", 21, 1, 22, 1))
sketch5.addConstraint(Sketcher.Constraint("Coincident", 22, 2, 23, 2))
sketch5.addConstraint(Sketcher.Constraint("Coincident", 24, 1, 0, 1))
sketch5.addConstraint(Sketcher.Constraint("Coincident", 25, 2, 26, 2))
sketch5.addConstraint(Sketcher.Constraint("Coincident", 28, 1, 29, 1))
sketch5.addConstraint(Sketcher.Constraint("Coincident", 29, 2, 30, 2))
sketch5.addConstraint(Sketcher.Constraint("Coincident", 31, 1, 32, 1))
sketch5.addConstraint(Sketcher.Constraint("Coincident", 32, 2, 33, 2))
sketch5.addConstraint(Sketcher.Constraint("Coincident", 35, 1, 36, 1))
sketch5.addConstraint(Sketcher.Constraint("Coincident", 36, 2, 37, 1))
sketch5.addConstraint(Sketcher.Constraint("Coincident", 37, 2, 25, 1))
sketch5.addConstraint(Sketcher.Constraint("Vertical", 37))
sketch5.addConstraint(Sketcher.Constraint("Vertical", 40))
sketch5.addConstraint(Sketcher.Constraint("DistanceY", 40, 2, 40, 1, 1.000781))
sketch5.addConstraint(Sketcher.Constraint("DistanceX", -1, 1, 36, 2, 2.629))
sketch5.addConstraint(Sketcher.Constraint("DistanceX", -1, 1, 38, 2, 4.554))
sketch5.addConstraint(Sketcher.Constraint("DistanceX", -1, 1, 39, 2, 3.154))
sketch5.addConstraint(Sketcher.Constraint("DistanceY", 40, 2, 37, 2, 1.183301))
sketch5.addConstraint(Sketcher.Constraint("Distance", 36, 0.446621))
sketch5.addConstraint(Sketcher.Constraint("DistanceY", 37, 1, 37, 2, 1.361035))
sketch5.addConstraint(Sketcher.Constraint("DistanceY", 36, 2, 38, 2, 0.67334))
pocket3 = body.newObject("PartDesign::Pocket", "Pocket002")
pocket3.Profile = sketch5
pocket3.Length = Q("0.02 in")
pocket3.Reversed = True

doc.recompute()
